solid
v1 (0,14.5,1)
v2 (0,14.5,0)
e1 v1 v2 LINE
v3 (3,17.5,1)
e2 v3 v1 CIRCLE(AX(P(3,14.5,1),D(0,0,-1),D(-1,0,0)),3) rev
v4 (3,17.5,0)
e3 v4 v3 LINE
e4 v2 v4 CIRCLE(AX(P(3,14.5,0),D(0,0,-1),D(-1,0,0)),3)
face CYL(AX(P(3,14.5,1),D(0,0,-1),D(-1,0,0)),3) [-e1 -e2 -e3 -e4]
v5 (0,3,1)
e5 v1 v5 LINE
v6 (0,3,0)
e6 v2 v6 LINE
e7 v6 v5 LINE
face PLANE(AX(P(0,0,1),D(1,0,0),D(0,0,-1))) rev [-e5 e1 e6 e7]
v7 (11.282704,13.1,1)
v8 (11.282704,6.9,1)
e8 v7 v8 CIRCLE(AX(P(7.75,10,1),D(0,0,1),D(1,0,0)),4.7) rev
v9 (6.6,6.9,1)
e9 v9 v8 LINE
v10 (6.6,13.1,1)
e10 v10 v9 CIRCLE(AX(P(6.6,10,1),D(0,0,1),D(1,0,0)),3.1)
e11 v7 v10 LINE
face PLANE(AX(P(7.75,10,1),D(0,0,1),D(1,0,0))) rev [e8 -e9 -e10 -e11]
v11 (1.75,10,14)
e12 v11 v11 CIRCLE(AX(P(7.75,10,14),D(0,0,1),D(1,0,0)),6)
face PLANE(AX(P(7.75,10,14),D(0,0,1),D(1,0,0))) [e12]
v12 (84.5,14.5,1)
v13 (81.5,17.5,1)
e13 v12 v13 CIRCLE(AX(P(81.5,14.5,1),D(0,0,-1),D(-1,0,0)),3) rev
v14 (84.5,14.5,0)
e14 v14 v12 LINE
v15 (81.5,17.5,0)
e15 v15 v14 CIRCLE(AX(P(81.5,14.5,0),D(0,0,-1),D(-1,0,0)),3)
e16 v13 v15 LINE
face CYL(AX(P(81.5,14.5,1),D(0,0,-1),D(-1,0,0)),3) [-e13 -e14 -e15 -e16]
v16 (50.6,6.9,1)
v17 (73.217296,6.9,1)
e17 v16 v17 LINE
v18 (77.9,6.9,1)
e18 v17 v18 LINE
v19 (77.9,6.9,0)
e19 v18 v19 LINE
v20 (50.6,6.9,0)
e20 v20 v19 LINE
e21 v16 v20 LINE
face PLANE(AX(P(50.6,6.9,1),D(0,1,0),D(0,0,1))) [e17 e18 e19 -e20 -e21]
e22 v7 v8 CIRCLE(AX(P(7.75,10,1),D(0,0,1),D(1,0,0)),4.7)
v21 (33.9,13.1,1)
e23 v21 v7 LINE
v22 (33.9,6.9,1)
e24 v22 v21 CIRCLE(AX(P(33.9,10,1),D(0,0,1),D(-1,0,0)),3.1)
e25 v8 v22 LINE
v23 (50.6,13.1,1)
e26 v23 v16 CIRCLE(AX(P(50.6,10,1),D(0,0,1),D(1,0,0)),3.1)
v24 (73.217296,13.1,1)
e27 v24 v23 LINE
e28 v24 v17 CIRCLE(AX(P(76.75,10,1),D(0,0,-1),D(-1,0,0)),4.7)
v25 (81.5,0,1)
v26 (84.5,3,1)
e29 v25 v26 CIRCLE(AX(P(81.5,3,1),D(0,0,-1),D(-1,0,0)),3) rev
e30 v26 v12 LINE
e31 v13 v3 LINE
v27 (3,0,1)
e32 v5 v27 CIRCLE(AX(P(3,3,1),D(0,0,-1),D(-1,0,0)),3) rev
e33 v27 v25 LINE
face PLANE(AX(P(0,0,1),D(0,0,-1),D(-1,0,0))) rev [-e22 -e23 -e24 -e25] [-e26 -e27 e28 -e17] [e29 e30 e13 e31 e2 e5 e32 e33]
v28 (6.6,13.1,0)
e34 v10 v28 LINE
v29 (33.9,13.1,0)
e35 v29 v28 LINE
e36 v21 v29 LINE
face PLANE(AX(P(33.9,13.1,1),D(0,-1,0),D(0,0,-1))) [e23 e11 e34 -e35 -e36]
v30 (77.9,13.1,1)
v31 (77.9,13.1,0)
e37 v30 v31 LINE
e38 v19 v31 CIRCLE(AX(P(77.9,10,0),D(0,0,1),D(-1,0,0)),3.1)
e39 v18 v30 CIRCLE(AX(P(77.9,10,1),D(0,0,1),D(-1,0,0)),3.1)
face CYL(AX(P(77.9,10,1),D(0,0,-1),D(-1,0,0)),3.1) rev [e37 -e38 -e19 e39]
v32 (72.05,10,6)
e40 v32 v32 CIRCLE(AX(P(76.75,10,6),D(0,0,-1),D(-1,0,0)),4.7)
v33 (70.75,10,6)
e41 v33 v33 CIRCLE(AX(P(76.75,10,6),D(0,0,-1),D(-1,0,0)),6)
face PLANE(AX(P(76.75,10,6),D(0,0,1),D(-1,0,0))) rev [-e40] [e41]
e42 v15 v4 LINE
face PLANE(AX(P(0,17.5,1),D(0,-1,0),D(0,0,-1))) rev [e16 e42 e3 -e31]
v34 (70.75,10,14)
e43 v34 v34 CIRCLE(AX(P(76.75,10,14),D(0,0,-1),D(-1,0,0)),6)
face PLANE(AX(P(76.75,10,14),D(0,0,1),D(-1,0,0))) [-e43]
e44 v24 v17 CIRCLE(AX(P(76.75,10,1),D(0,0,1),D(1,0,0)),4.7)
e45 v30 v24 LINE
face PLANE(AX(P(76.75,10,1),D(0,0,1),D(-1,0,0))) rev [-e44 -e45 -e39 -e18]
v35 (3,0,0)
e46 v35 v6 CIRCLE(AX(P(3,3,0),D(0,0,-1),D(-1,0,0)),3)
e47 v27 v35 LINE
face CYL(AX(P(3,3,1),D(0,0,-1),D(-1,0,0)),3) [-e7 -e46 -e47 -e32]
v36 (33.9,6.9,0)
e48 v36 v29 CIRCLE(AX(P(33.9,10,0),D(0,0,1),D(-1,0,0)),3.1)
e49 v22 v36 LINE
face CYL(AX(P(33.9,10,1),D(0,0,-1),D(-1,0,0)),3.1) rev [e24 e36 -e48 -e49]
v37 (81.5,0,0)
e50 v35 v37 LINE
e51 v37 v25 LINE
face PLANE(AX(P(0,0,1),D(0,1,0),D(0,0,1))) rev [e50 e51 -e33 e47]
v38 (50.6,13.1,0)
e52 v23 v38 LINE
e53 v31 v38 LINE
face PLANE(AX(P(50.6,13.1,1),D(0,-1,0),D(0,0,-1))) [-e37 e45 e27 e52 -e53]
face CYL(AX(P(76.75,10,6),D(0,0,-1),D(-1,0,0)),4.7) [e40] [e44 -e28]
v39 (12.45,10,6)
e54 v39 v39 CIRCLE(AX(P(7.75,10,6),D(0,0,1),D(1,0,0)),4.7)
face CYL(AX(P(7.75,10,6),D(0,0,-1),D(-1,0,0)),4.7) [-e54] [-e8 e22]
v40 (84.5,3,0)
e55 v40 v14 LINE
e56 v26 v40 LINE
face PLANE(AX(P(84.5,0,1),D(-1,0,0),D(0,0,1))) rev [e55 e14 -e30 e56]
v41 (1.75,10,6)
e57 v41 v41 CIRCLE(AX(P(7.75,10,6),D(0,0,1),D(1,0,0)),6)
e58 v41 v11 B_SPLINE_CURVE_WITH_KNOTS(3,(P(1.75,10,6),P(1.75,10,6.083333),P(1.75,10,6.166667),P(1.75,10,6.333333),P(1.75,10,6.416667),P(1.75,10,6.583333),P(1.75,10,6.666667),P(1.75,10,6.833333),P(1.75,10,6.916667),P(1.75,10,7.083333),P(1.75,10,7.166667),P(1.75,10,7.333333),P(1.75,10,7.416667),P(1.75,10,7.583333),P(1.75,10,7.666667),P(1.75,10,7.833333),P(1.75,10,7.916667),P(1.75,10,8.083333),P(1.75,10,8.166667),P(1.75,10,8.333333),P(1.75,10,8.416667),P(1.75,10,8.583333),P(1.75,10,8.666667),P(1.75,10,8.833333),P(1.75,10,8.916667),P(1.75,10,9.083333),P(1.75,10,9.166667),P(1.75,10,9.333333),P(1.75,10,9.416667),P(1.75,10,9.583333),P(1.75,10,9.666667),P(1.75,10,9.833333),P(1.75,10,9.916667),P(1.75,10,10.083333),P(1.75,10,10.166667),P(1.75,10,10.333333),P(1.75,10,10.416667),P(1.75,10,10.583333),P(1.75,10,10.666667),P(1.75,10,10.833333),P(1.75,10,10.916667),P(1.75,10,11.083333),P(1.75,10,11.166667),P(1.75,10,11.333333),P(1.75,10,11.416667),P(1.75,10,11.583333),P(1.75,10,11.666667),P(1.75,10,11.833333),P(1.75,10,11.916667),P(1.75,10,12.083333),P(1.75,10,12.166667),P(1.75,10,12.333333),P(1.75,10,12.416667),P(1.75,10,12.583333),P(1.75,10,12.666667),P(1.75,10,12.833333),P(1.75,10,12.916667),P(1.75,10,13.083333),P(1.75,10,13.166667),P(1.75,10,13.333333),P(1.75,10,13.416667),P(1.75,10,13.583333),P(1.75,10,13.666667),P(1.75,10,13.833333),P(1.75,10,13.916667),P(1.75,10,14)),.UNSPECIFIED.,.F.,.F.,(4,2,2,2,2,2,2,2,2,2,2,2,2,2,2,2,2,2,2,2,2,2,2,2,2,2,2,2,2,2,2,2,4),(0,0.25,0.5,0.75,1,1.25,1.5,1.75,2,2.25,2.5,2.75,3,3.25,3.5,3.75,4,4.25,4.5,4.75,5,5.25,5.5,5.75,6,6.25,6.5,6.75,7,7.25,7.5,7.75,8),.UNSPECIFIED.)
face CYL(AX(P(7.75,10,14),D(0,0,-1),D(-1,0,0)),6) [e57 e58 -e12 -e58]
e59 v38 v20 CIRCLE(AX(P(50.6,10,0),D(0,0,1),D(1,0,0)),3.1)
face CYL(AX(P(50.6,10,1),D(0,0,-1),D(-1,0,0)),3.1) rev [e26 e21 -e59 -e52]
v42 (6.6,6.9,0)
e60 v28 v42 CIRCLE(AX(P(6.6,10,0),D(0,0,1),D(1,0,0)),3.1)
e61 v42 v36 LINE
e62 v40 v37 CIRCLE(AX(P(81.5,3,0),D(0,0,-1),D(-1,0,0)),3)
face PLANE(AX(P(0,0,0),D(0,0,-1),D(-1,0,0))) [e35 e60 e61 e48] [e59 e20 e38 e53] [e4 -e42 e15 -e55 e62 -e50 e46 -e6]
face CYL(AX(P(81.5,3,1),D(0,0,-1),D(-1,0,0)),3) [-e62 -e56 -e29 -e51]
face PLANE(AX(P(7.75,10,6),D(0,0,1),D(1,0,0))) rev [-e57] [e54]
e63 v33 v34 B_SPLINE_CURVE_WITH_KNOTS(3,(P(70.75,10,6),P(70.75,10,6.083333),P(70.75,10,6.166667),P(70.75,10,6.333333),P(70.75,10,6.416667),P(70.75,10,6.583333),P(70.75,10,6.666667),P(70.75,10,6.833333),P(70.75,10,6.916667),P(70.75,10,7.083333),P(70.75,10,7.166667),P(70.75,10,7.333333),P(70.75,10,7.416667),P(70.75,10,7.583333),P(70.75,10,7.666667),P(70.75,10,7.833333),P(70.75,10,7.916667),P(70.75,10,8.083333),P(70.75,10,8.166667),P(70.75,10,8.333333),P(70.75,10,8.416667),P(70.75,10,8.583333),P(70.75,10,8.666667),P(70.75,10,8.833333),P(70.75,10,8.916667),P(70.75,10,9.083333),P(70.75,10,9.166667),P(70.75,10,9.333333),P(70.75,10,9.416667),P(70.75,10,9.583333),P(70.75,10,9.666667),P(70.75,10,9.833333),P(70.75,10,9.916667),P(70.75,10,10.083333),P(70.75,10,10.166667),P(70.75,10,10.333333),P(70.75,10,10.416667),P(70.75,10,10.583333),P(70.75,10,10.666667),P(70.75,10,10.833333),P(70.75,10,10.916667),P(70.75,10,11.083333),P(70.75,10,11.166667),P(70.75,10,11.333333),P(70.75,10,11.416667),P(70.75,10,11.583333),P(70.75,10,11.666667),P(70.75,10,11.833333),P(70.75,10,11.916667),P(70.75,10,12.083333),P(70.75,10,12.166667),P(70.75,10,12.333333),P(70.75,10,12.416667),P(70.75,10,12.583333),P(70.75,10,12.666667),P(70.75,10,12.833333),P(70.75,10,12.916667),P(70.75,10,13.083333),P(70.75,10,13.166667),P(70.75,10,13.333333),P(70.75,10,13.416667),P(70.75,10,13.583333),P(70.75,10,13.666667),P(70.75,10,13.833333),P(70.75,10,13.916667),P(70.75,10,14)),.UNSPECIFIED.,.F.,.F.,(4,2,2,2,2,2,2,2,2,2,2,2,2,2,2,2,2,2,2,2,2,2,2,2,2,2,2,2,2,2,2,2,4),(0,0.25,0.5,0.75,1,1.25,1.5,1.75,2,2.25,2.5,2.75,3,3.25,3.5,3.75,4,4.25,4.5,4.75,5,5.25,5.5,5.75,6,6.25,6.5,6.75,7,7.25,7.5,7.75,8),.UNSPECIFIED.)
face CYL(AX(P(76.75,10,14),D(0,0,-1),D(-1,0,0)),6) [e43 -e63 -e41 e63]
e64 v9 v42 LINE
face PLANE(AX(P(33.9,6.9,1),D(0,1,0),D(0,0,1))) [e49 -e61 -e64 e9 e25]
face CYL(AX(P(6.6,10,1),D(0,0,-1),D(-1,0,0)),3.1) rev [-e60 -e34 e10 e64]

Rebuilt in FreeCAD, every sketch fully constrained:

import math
import FreeCAD as App
import Part
import Sketcher

V = App.Vector
Q = App.Units.Quantity


def edges_at(feature, points):
    """Names of the edges that pass closest to the given points."""
    edges = feature.Shape.Edges
    near = lambda p: min(range(len(edges)), key=lambda i: edges[i].distToShape(Part.Vertex(*p))[0])
    return sorted({f"Edge{near(p) + 1}" for p in points})


def add_polygon(sketch, points):
    """Adds a closed chain of lines whose ends are joined by coincident constraints."""
    first, n = sketch.GeometryCount, len(points)
    for a, b in zip(points, points[1:] + points[:1]):
        sketch.addGeometry(Part.LineSegment(App.Vector(*a, 0), App.Vector(*b, 0)), False)
    for i in range(n):
        sketch.addConstraint(Sketcher.Constraint("Coincident", first + i, 2, first + (i + 1) % n, 1))

doc = App.newDocument("Part")
params = doc.addObject("Spreadsheet::Sheet", "Params")
for row, (alias, value) in enumerate([
    ("sketch1_radius", "3.1 mm"),
    ("sketch1_width", "84.5 mm"),
    ("sketch1_width2", "27.3 mm"),
    ("sketch1_height", "17.5 mm"),
    ("pad1_length", "1 mm"),
    ("fillet_radius", "3 mm"),
    ("sketch2_diameter", "12 mm"),
    ("pad2_length", "13 mm"),
    ("sketch3_diameter", "12 mm"),
    ("sketch3_diameter2", "9.4 mm"),
    ("pocket1_length", "5 mm"),
], start=1):
    params.set(f"A{row}", alias)
    params.set(f"B{row}", "=" + value)
    params.setAlias(f"B{row}", alias)

body = doc.addObject("PartDesign::Body", "Body")

# Sketch on XY plane
sketch1 = doc.addObject("Sketcher::SketchObject", "Sketch")
body.addObject(sketch1)
sketch1.AttachmentSupport = (doc.XY_Plane, [""])
sketch1.MapMode = "FlatFace"
add_polygon(sketch1, [(0, 17.5), (0, 0), (84.5, 0), (84.5, 17.5)])  # lines 0-3
sketch1.addGeometry(Part.LineSegment(V(6.6, 13.1, 0), V(33.9, 13.1, 0)), False)  # 4
sketch1.addGeometry(Part.ArcOfCircle(Part.Circle(V(33.9, 10, 0), V(0, 0, 1), 3.1), math.radians(-90), math.radians(90)), False)  # 5
sketch1.addGeometry(Part.LineSegment(V(33.9, 6.9, 0), V(6.6, 6.9, 0)), False)  # 6
sketch1.addGeometry(Part.ArcOfCircle(Part.Circle(V(6.6, 10, 0), V(0, 0, 1), 3.1), math.radians(90), math.radians(270)), False)  # 7
sketch1.addGeometry(Part.ArcOfCircle(Part.Circle(V(50.6, 10, 0), V(0, 0, 1), 3.1), math.radians(90), math.radians(270)), False)  # 8
sketch1.addGeometry(Part.LineSegment(V(50.6, 13.1, 0), V(77.9, 13.1, 0)), False)  # 9
sketch1.addGeometry(Part.ArcOfCircle(Part.Circle(V(77.9, 10, 0), V(0, 0, 1), 3.1), math.radians(-90), math.radians(90)), False)  # 10
sketch1.addGeometry(Part.LineSegment(V(77.9, 6.9, 0), V(50.6, 6.9, 0)), False)  # 11
sketch1.addConstraint([
    Sketcher.Constraint("Tangent", 4, 2, 5, 2),
    Sketcher.Constraint("Tangent", 5, 1, 6, 1),
    Sketcher.Constraint("Tangent", 6, 2, 7, 2),
    Sketcher.Constraint("Tangent", 7, 1, 4, 1),
    Sketcher.Constraint("Tangent", 8, 1, 9, 1),
    Sketcher.Constraint("Tangent", 9, 2, 10, 2),
    Sketcher.Constraint("Tangent", 10, 1, 11, 1),
    Sketcher.Constraint("Tangent", 11, 2, 8, 2),
    Sketcher.Constraint("Vertical", 0),
    Sketcher.Constraint("Horizontal", 1),
    Sketcher.Constraint("Vertical", 2),
    Sketcher.Constraint("Horizontal", 3),
    Sketcher.Constraint("Horizontal", 4),
    Sketcher.Constraint("Horizontal", 6),
    Sketcher.Constraint("Horizontal", 9),
    Sketcher.Constraint("Horizontal", 11),
    Sketcher.Constraint("Coincident", 0, 2, -1, 1),
    Sketcher.Constraint("Equal", 7, 8),
    Sketcher.Constraint("Horizontal", 7, 3, 8, 3),
    Sketcher.Constraint("Equal", 6, 9),
    Sketcher.Constraint("Radius", 5, Q("3.1 mm")),
    Sketcher.Constraint("DistanceX", 1, 1, 1, 2, Q("84.5 mm")),
    Sketcher.Constraint("DistanceX", 4, 1, 4, 2, Q("27.3 mm")),
    Sketcher.Constraint("DistanceY", 0, 2, 0, 1, Q("17.5 mm")),
    Sketcher.Constraint("DistanceY", -1, 1, 5, 3, Q("10 mm")),
    Sketcher.Constraint("DistanceX", 7, 3, 8, 3, Q("44 mm")),
    Sketcher.Constraint("DistanceX", -1, 1, 5, 3, Q("33.9 mm")),
])
sketch1.setExpression("Constraints[24]", "Params.sketch1_radius")
sketch1.setExpression("Constraints[25]", "Params.sketch1_width")
sketch1.setExpression("Constraints[26]", "Params.sketch1_width2")
sketch1.setExpression("Constraints[27]", "Params.sketch1_height")
pad1 = doc.addObject("PartDesign::Pad", "Pad")
body.addObject(pad1)
pad1.Profile = sketch1
pad1.setExpression("Length", "Params.pad1_length")
doc.recompute()

fillet = doc.addObject("PartDesign::Fillet", "Fillet")
body.addObject(fillet)
fillet.Base = (pad1, edges_at(pad1, [
    (0, 17.5, 0.5),
    (84.5, 17.5, 0.5),
    (84.5, 0, 0.5),
    (0, 0, 0.5),
]))
fillet.setExpression("Radius", "Params.fillet_radius")

# Sketch on XY plane
sketch2 = doc.addObject("Sketcher::SketchObject", "Sketch001")
body.addObject(sketch2)
sketch2.AttachmentSupport = (doc.XY_Plane, [""])
sketch2.MapMode = "FlatFace"
sketch2.AttachmentOffset = App.Placement(V(0, 0, 1), App.Rotation())
sketch2.addGeometry(Part.Circle(V(8, 10, 0), V(0, 0, 1), 6), False)
sketch2.addConstraint([
    Sketcher.Constraint("Diameter", 0, Q("12 mm")),
    Sketcher.Constraint("DistanceY", -1, 1, 0, 3, Q("10 mm")),
    Sketcher.Constraint("DistanceX", -1, 1, 0, 3, Q("7.75 mm")),
])
sketch2.setExpression("Constraints[0]", "Params.sketch2_diameter")
pad2 = doc.addObject("PartDesign::Pad", "Pad001")
body.addObject(pad2)
pad2.Profile = sketch2
pad2.setExpression("Length", "Params.pad2_length")

# Sketch on XY plane
sketch3 = doc.addObject("Sketcher::SketchObject", "Sketch002")
body.addObject(sketch3)
sketch3.AttachmentSupport = (doc.XY_Plane, [""])
sketch3.MapMode = "FlatFace"
sketch3.AttachmentOffset = App.Placement(V(0, 0, 1), App.Rotation())
sketch3.addGeometry([
    Part.Circle(V(7.8, 10, 0), V(0, 0, 1), 6),
    Part.Circle(V(7.8, 10, 0), V(0, 0, 1), 4.7),
], False)
sketch3.addConstraint([
    Sketcher.Constraint("Coincident", 1, 3, 0, 3),
    Sketcher.Constraint("Diameter", 0, Q("12 mm")),
    Sketcher.Constraint("Diameter", 1, Q("9.4 mm")),
    Sketcher.Constraint("DistanceY", -1, 1, 0, 3, Q("10 mm")),
    Sketcher.Constraint("DistanceX", -1, 1, 0, 3, Q("7.75 mm")),
])
sketch3.setExpression("Constraints[1]", "Params.sketch3_diameter")
sketch3.setExpression("Constraints[2]", "Params.sketch3_diameter2")
pocket1 = doc.addObject("PartDesign::Pocket", "Pocket")
body.addObject(pocket1)
pocket1.Profile = sketch3
pocket1.setExpression("Length", "Params.pocket1_length")
pocket1.Reversed = True
doc.recompute()

datumplane = doc.addObject("PartDesign::Plane", "DatumPlane")
body.addObject(datumplane)
datumplane.AttachmentSupport = (doc.YZ_Plane, [""])
datumplane.MapMode = "FlatFace"
datumplane.AttachmentOffset = App.Placement(V(0, 0, 42.25), App.Rotation())
mirrored = doc.addObject("PartDesign::Mirrored", "Mirrored")
body.addObject(mirrored)
mirrored.Originals = [pad2, pocket1]
mirrored.MirrorPlane = (datumplane, [""])
body.Tip = mirrored

doc.recompute()
